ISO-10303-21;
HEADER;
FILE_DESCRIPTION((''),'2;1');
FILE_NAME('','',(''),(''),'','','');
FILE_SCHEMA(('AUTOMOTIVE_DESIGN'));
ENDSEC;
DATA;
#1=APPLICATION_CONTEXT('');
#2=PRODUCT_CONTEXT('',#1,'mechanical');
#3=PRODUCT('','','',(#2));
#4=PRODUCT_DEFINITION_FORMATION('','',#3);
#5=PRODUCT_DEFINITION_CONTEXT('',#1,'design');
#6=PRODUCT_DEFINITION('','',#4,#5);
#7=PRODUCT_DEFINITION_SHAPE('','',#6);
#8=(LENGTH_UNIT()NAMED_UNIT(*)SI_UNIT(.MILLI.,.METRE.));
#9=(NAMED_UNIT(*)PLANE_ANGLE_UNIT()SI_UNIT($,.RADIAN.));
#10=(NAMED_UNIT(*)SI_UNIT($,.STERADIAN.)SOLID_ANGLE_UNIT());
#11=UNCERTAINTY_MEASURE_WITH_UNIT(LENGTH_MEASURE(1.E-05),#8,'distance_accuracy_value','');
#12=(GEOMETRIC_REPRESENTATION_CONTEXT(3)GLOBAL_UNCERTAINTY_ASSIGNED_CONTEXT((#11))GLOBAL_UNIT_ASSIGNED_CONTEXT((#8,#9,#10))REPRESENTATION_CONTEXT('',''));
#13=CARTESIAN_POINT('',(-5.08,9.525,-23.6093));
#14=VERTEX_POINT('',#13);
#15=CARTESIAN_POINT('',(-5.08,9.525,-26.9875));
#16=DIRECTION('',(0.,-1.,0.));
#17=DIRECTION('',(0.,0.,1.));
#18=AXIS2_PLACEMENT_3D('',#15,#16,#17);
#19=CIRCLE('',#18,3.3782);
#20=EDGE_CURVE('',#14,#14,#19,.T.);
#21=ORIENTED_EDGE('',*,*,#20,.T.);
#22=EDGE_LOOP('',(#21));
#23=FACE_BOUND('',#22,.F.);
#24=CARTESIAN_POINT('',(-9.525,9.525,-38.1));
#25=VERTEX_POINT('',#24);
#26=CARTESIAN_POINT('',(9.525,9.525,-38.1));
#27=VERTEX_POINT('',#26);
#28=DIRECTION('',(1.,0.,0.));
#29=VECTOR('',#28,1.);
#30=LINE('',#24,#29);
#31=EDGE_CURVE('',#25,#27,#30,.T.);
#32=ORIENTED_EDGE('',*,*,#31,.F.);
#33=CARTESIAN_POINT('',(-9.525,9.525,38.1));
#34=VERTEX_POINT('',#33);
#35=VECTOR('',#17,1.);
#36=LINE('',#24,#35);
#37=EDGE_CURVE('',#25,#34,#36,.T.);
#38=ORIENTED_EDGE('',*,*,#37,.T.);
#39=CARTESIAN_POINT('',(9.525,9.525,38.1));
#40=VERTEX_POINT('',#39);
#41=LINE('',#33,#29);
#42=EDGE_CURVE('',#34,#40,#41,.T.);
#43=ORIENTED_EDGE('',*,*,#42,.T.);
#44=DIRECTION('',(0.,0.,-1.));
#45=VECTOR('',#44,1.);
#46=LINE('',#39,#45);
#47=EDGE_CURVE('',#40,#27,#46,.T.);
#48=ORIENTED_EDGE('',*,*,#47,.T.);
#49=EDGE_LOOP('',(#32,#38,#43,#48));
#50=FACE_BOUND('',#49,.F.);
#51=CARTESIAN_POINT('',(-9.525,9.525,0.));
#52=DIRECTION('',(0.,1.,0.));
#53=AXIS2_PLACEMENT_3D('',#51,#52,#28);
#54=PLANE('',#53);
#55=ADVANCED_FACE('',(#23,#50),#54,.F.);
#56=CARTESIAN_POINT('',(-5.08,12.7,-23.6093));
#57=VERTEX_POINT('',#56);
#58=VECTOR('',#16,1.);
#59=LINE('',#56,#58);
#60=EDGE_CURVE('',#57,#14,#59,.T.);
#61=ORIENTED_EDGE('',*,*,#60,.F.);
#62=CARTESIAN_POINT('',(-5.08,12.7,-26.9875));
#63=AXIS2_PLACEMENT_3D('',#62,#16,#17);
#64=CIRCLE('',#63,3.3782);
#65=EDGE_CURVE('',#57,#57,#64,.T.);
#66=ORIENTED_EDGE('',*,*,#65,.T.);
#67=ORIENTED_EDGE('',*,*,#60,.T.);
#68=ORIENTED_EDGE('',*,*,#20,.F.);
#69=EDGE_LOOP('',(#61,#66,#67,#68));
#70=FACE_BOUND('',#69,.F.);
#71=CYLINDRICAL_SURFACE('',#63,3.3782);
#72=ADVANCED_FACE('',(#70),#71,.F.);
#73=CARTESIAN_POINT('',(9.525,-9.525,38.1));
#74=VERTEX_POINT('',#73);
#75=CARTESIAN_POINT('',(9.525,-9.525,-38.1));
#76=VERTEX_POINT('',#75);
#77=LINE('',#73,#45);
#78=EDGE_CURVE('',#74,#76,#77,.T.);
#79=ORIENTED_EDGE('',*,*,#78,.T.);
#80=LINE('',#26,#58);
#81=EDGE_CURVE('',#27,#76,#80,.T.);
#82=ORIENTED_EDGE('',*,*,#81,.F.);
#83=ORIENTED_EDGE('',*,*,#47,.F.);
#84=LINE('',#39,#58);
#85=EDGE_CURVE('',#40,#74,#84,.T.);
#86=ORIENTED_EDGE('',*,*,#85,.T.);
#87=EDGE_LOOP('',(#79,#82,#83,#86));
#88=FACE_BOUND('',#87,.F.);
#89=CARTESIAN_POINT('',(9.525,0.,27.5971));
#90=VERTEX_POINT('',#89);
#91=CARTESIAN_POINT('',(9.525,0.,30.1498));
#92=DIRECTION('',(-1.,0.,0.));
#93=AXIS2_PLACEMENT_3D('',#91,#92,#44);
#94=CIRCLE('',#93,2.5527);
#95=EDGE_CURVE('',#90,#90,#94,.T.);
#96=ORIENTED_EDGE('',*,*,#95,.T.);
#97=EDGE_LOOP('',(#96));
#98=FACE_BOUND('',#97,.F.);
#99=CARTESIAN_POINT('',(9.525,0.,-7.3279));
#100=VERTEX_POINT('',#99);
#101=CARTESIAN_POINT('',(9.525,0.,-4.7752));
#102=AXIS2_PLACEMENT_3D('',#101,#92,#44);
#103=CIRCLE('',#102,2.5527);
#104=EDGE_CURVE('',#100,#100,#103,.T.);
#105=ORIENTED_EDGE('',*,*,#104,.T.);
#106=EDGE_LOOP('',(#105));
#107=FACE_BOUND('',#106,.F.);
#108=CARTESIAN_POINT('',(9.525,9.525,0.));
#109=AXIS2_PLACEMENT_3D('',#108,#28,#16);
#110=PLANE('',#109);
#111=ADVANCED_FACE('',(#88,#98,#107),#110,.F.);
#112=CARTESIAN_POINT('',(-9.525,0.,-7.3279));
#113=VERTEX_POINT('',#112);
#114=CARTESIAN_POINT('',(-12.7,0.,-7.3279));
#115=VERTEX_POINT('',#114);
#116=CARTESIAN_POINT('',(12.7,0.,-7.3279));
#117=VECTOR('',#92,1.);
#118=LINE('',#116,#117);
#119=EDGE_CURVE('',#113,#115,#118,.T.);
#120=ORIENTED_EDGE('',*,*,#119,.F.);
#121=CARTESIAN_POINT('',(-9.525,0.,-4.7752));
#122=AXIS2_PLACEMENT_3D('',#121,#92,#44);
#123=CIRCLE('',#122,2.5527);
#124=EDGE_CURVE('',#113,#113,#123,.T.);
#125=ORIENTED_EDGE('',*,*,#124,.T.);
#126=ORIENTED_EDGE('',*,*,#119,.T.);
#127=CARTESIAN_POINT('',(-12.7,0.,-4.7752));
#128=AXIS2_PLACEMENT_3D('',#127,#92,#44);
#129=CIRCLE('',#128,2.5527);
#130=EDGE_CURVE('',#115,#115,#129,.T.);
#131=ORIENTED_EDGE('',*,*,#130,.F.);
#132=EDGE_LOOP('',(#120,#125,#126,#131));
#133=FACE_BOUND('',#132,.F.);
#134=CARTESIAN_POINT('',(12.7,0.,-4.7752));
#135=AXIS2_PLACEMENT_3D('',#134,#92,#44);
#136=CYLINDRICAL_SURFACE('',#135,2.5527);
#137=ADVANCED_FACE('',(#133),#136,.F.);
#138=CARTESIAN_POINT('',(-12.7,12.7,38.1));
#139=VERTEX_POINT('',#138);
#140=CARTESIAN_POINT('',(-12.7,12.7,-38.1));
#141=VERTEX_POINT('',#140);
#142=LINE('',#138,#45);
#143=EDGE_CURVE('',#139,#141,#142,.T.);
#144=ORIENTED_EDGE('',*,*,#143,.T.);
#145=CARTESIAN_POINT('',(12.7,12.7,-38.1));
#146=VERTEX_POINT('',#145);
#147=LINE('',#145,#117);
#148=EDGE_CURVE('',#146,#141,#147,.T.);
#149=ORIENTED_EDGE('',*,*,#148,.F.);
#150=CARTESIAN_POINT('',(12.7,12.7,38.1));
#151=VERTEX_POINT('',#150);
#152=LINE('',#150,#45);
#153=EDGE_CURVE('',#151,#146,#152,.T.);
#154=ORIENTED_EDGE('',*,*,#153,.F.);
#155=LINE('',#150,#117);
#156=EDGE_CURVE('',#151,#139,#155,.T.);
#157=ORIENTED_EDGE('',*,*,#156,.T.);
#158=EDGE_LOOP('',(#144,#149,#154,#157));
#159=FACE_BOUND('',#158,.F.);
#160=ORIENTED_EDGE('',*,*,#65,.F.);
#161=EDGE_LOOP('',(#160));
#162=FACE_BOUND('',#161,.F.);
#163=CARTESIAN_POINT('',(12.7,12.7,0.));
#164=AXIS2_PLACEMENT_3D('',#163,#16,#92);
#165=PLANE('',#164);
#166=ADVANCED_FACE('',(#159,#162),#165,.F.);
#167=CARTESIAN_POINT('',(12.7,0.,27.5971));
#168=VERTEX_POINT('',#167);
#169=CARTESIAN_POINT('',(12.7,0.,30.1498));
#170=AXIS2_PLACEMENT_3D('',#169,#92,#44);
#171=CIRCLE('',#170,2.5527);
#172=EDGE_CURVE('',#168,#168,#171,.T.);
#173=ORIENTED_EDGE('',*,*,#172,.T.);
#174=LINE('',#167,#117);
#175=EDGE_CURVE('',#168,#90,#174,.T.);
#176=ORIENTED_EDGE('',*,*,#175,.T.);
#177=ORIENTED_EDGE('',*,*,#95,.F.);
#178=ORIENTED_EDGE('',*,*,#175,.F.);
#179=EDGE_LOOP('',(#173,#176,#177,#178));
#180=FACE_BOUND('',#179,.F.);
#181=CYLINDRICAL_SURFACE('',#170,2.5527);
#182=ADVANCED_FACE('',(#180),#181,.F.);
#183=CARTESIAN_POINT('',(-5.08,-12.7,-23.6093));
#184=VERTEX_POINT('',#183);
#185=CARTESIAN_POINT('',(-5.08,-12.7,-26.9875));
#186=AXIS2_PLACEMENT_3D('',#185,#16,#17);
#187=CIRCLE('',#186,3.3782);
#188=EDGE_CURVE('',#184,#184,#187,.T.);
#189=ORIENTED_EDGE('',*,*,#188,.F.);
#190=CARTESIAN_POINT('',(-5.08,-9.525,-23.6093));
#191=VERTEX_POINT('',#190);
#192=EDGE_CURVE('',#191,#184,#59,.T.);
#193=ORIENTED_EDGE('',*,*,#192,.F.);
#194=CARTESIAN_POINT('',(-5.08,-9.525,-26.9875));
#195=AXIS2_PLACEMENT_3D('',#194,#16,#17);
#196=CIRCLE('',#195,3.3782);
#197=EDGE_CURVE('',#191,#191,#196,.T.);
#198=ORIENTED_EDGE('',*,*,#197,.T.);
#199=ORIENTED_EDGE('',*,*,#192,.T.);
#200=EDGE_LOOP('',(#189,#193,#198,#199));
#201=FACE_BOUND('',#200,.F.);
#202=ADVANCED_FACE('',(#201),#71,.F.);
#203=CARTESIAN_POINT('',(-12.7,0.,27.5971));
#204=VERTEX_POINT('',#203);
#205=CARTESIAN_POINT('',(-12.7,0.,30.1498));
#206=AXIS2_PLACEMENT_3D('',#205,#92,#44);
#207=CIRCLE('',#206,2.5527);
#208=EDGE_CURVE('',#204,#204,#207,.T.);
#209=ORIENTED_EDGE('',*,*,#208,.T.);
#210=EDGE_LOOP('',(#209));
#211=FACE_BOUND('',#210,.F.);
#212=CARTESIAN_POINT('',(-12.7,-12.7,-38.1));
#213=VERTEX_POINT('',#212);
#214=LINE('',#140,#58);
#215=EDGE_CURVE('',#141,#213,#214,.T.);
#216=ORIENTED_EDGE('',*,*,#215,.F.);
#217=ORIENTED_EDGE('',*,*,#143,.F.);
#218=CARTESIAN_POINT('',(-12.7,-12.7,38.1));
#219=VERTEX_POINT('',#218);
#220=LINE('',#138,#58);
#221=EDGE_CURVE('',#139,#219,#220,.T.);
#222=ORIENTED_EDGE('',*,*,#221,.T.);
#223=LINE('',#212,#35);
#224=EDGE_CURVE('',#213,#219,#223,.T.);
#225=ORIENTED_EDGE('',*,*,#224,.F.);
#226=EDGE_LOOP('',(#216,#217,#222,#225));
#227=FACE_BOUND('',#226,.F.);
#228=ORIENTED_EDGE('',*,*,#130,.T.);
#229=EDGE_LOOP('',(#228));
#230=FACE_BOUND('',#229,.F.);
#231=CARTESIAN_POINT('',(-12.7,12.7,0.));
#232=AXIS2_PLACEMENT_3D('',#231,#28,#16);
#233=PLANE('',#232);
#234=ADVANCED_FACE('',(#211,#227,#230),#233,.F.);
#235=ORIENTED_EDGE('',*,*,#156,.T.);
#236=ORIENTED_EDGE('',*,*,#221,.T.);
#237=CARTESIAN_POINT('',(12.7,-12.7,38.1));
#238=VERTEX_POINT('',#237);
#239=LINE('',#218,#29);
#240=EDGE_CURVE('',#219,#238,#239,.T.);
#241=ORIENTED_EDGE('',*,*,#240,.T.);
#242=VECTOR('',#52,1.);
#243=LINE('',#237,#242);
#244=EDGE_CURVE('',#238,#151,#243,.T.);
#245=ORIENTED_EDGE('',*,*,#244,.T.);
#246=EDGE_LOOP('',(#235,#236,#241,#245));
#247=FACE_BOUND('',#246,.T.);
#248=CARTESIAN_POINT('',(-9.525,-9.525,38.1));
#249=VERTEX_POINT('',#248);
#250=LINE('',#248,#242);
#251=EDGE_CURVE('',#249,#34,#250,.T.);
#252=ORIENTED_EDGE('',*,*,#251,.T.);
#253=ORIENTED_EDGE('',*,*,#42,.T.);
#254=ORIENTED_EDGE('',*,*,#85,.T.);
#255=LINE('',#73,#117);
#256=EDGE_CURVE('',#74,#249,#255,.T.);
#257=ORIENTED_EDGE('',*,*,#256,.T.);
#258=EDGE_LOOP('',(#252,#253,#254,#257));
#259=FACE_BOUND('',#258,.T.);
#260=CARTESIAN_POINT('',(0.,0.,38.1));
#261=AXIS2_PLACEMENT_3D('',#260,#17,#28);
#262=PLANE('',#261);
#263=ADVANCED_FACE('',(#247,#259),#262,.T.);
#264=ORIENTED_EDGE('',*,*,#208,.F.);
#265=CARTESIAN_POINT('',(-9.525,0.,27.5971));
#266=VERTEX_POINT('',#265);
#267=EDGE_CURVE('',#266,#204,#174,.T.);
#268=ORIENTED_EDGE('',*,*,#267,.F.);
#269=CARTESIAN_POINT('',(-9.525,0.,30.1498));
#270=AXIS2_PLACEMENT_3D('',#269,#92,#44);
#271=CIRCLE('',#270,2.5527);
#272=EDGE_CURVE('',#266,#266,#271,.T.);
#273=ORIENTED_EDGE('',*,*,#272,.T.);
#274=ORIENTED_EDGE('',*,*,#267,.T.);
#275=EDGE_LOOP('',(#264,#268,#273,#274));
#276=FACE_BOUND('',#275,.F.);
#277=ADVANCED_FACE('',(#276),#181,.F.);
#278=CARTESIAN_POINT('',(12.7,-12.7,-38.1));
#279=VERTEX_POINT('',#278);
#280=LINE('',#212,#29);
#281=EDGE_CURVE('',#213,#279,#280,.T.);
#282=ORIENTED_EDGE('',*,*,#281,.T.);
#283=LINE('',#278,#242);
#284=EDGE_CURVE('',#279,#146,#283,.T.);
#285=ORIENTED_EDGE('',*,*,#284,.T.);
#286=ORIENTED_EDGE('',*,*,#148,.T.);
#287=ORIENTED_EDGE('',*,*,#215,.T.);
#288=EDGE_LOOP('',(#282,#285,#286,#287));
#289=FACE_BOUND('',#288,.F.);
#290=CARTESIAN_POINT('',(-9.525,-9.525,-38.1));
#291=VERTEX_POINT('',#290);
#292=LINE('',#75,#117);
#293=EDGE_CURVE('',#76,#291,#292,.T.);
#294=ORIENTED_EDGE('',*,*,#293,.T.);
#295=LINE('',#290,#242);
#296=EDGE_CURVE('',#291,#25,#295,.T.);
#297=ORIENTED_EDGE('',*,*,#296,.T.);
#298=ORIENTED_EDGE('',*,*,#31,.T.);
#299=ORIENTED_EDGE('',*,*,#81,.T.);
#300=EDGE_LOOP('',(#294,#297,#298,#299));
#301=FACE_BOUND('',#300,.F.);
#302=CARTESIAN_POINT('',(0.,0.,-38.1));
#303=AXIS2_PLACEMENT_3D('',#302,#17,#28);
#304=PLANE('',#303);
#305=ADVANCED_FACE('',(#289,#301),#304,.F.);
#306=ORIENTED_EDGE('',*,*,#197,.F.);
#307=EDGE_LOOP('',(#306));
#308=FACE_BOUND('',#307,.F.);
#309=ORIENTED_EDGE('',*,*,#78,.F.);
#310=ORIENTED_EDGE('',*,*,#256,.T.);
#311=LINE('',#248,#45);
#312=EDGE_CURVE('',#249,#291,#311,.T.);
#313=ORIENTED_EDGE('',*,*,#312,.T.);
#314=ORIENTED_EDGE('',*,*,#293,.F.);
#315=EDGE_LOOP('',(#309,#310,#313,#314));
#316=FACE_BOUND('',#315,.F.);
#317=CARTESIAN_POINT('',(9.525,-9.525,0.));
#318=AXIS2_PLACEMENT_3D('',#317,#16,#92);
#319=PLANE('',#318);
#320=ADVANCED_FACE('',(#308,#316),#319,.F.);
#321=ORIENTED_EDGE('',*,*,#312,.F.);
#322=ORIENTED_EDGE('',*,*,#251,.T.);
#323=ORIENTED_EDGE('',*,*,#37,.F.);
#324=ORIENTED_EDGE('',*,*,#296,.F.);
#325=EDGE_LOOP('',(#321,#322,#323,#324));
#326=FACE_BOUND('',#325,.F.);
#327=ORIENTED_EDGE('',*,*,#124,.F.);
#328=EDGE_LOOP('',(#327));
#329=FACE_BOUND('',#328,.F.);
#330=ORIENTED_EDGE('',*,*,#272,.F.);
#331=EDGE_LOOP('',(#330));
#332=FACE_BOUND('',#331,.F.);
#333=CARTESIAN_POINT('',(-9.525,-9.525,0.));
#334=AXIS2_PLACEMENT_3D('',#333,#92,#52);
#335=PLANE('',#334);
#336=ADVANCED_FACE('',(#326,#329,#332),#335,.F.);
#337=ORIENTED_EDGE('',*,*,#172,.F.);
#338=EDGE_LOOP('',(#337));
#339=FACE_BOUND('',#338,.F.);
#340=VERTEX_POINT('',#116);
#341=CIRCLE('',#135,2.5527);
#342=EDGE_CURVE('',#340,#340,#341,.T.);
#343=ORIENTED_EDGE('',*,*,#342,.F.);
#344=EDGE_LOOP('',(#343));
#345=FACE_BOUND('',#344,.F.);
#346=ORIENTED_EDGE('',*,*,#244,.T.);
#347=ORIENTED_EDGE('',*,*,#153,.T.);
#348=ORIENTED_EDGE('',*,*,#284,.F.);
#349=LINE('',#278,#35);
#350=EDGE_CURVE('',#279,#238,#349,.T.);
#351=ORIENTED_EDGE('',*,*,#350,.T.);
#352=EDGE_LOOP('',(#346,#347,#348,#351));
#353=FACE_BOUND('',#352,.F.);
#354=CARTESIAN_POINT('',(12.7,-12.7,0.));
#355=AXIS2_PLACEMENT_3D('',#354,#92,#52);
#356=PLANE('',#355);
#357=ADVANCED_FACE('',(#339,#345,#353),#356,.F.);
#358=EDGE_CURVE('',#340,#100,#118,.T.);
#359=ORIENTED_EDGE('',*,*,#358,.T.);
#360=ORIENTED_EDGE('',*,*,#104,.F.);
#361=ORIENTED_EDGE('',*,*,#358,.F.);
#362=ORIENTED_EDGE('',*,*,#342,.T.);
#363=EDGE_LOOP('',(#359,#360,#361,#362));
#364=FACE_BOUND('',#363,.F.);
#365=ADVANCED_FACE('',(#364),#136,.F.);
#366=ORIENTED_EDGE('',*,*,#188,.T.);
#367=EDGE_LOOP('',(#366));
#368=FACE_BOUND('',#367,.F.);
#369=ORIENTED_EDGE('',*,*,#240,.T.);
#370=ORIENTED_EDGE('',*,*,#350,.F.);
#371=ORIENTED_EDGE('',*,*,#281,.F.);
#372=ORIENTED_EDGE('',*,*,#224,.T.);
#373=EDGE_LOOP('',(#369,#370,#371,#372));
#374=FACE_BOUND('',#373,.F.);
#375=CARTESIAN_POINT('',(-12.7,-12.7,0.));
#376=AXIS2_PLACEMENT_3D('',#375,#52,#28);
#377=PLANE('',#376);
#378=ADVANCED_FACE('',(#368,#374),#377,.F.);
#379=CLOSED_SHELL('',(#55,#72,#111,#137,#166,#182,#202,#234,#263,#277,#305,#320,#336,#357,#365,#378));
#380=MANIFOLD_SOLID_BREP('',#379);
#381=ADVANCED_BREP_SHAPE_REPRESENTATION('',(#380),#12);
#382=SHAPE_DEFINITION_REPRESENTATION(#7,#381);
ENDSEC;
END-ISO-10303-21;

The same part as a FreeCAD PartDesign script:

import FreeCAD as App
import Part
import Sketcher

V = App.Vector
Q = App.Units.Quantity


def add_polygon(sketch, points):
    """Adds a closed chain of lines whose ends are joined by coincident constraints."""
    first, n = sketch.GeometryCount, len(points)
    for a, b in zip(points, points[1:] + points[:1]):
        sketch.addGeometry(Part.LineSegment(App.Vector(*a, 0), App.Vector(*b, 0)), False)
    for i in range(n):
        sketch.addConstraint(Sketcher.Constraint("Coincident", first + i, 2, first + (i + 1) % n, 1))

doc = App.newDocument("Part")
params = doc.addObject("Spreadsheet::Sheet", "Params")
for row, (alias, value) in enumerate([
    ("sketch1_width", "1 in"),
    ("pad1_length", "3 in"),
    ("sketch2_diameter", "0.201 in"),
    ("hole_diameter", "0.201 in"),
    ("sketch3_diameter", "0.266 in"),
    ("hole2_diameter", "0.266 in"),
], start=1):
    params.set(f"A{row}", alias)
    params.set(f"B{row}", "=" + value)
    params.setAlias(f"B{row}", alias)

body = doc.addObject("PartDesign::Body", "Body")

sketch1 = body.newObject("Sketcher::SketchObject", "Sketch")
sketch1.AttachmentSupport = (doc.getObject("XY_Plane"), [""])
sketch1.MapMode = "FlatFace"
add_polygon(sketch1, [(-13, 13), (-13, -13), (13, -13), (13, 13)])
add_polygon(sketch1, [(-10, -10), (-10, 10), (10, 10), (10, -10)])
sketch1.addConstraint([
    Sketcher.Constraint("Vertical", 0),
    Sketcher.Constraint("Horizontal", 1),
    Sketcher.Constraint("Vertical", 2),
    Sketcher.Constraint("Horizontal", 3),
    Sketcher.Constraint("Vertical", 4),
    Sketcher.Constraint("Horizontal", 5),
    Sketcher.Constraint("Vertical", 6),
    Sketcher.Constraint("Horizontal", 7),
    Sketcher.Constraint("Symmetric", 0, 2, 2, 2, -1, 1),
    Sketcher.Constraint("Symmetric", 4, 2, 6, 2, -1, 1),
    Sketcher.Constraint("Equal", 3, 0),
    Sketcher.Constraint("Equal", 7, 4),
    Sketcher.Constraint("DistanceX", 1, 1, 1, 2, Q("1 in")),
    Sketcher.Constraint("DistanceX", 3, 2, 4, 2, Q("0.125 in")),
])
sketch1.setExpression("Constraints[20]", "Params.sketch1_width")
pad1 = body.newObject("PartDesign::Pad", "Pad")
pad1.Profile = sketch1
pad1.setExpression("Length", "Params.pad1_length")
pad1.Midplane = True

sketch2 = body.newObject("Sketcher::SketchObject", "Sketch001")
sketch2.AttachmentSupport = (doc.getObject("YZ_Plane"), [""])
sketch2.MapMode = "FlatFace"
sketch2.AttachmentOffset = App.Placement(V(0, 0, 0.5 * 25.4), App.Rotation())
sketch2.addGeometry([
    Part.Circle(V(0, -4.8, 0), V(0, 0, 1), 2.6),
    Part.Circle(V(0, 30.1, 0), V(0, 0, 1), 2.6),
], False)
sketch2.addConstraint([
    Sketcher.Constraint("Equal", 0, 1),
    Sketcher.Constraint("PointOnObject", 0, 3, -2),
    Sketcher.Constraint("PointOnObject", 1, 3, -2),
    Sketcher.Constraint("Diameter", 0, Q("0.201 in")),
    Sketcher.Constraint("DistanceY", 0, 3, -1, 1, Q("0.188 in")),
    Sketcher.Constraint("DistanceY", -1, 1, 1, 3, Q("1.187 in")),
])
sketch2.setExpression("Constraints[3]", "Params.sketch2_diameter")
doc.recompute()
hole = body.newObject("PartDesign::Hole", "Hole")
hole.Profile = sketch2
hole.ThreadType = "None"
hole.setExpression("Diameter", "Params.hole_diameter")
hole.DepthType = "ThroughAll"

sketch3 = body.newObject("Sketcher::SketchObject", "Sketch002")
sketch3.AttachmentSupport = (doc.getObject("XZ_Plane"), [""])
sketch3.MapMode = "FlatFace"
sketch3.AttachmentOffset = App.Placement(V(0, 0, -0.5 * 25.4), App.Rotation())
sketch3.addGeometry(Part.Circle(V(-5.1, -27, 0), V(0, 0, 1), 3.4), False)
sketch3.addConstraint([
    Sketcher.Constraint("Diameter", 0, Q("0.266 in")),
    Sketcher.Constraint("DistanceX", 0, 3, -1, 1, Q("0.2 in")),
    Sketcher.Constraint("DistanceY", 0, 3, -1, 1, Q("1.0625 in")),
])
sketch3.setExpression("Constraints[0]", "Params.sketch3_diameter")
doc.recompute()
hole2 = body.newObject("PartDesign::Hole", "Hole001")
hole2.Profile = sketch3
hole2.ThreadType = "None"
hole2.setExpression("Diameter", "Params.hole2_diameter")
hole2.DepthType = "ThroughAll"
hole2.Reversed = True

doc.recompute()
